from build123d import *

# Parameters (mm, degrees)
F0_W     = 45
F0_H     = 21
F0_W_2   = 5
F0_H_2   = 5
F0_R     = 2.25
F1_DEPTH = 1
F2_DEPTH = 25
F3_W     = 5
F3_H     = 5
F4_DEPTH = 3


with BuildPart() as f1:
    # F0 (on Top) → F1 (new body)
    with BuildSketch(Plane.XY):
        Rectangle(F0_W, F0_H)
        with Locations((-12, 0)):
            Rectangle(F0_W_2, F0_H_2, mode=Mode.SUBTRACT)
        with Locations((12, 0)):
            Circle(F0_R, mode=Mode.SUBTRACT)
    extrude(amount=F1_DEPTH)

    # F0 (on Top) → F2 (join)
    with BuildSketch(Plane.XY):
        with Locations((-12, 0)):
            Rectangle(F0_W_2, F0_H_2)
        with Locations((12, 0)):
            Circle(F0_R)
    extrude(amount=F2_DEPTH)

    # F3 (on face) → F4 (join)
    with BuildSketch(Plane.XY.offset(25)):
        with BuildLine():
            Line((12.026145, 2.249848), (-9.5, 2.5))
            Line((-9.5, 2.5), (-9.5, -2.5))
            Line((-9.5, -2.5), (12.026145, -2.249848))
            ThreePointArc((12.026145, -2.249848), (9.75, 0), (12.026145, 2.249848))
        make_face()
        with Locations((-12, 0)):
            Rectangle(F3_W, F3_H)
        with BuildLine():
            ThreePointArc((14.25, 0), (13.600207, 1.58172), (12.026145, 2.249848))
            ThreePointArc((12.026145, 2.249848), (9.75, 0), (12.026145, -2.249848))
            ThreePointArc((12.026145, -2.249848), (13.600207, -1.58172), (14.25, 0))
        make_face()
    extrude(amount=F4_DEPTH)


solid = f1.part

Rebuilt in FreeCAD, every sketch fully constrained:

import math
import FreeCAD as App
import Part
import Sketcher
from FreeCAD import Vector

doc = App.newDocument("Part")
body = doc.addObject("PartDesign::Body", "Body")

sketch1 = body.newObject("Sketcher::SketchObject", "Sketch")
sketch1.AttachmentSupport = (doc.getObject("XY_Plane"), [""])
sketch1.MapMode = "FlatFace"
sketch1.addGeometry([
    Part.LineSegment(Vector(-22.5, 10.5, 0), Vector(-22.5, -10.5, 0)),
    Part.LineSegment(Vector(-22.5, -10.5, 0), Vector(22.5, -10.5, 0)),
    Part.LineSegment(Vector(22.5, -10.5, 0), Vector(22.5, 10.5, 0)),
    Part.LineSegment(Vector(22.5, 10.5, 0), Vector(-22.5, 10.5, 0)),
    Part.LineSegment(Vector(-9.5, -2.5, 0), Vector(-14.5, -2.5, 0)),
    Part.LineSegment(Vector(-14.5, -2.5, 0), Vector(-14.5, 2.5, 0)),
    Part.LineSegment(Vector(-14.5, 2.5, 0), Vector(-9.5, 2.5, 0)),
    Part.LineSegment(Vector(-9.5, 2.5, 0), Vector(-9.5, -2.5, 0)),
    Part.Circle(Vector(12, 0, 0), Vector(0, 0, 1), 2.25),
], False)
sketch1.addConstraint([
    Sketcher.Constraint("Coincident", 0, 2, 1, 1),
    Sketcher.Constraint("Coincident", 1, 2, 2, 1),
    Sketcher.Constraint("Coincident", 2, 2, 3, 1),
    Sketcher.Constraint("Coincident", 3, 2, 0, 1),
    Sketcher.Constraint("Coincident", 4, 2, 5, 1),
    Sketcher.Constraint("Coincident", 5, 2, 6, 1),
    Sketcher.Constraint("Coincident", 6, 2, 7, 1),
    Sketcher.Constraint("Coincident", 7, 2, 4, 1),
    Sketcher.Constraint("Vertical", 0),
    Sketcher.Constraint("Horizontal", 1),
    Sketcher.Constraint("Vertical", 2),
    Sketcher.Constraint("Horizontal", 3),
    Sketcher.Constraint("Horizontal", 4),
    Sketcher.Constraint("Vertical", 5),
    Sketcher.Constraint("Horizontal", 6),
    Sketcher.Constraint("Vertical", 7),
    Sketcher.Constraint("Symmetric", 0, 2, 2, 2, -1, 1),
    Sketcher.Constraint("PointOnObject", 8, 3, -1),
    Sketcher.Constraint("Equal", 6, 5),
    Sketcher.Constraint("Diameter", 8, 4.5),
    Sketcher.Constraint("DistanceX", 1, 1, 1, 2, 45.0),
    Sketcher.Constraint("DistanceX", 4, 2, 4, 1, 5.0),
    Sketcher.Constraint("DistanceY", 0, 2, 0, 1, 21.0),
    Sketcher.Constraint("DistanceX", -1, 1, 8, 3, 12.0),
    Sketcher.Constraint("DistanceX", 0, 2, 4, 2, 8.0),
    Sketcher.Constraint("DistanceY", 0, 2, 4, 2, 8.0),
])
pad1 = body.newObject("PartDesign::Pad", "Pad")
pad1.Profile = sketch1
pad1.Length = 1

sketch2 = body.newObject("Sketcher::SketchObject", "Sketch001")
sketch2.AttachmentSupport = (doc.getObject("XY_Plane"), [""])
sketch2.MapMode = "FlatFace"
sketch2.addGeometry([
    Part.LineSegment(Vector(-14.5, 2.5, 0), Vector(-14.5, -2.5, 0)),
    Part.LineSegment(Vector(-14.5, -2.5, 0), Vector(-9.5, -2.5, 0)),
    Part.LineSegment(Vector(-9.5, -2.5, 0), Vector(-9.5, 2.5, 0)),
    Part.LineSegment(Vector(-9.5, 2.5, 0), Vector(-14.5, 2.5, 0)),
    Part.Circle(Vector(12, 0, 0), Vector(0, 0, 1), 2.25),
], False)
sketch2.addConstraint([
    Sketcher.Constraint("Coincident", 0, 2, 1, 1),
    Sketcher.Constraint("Coincident", 1, 2, 2, 1),
    Sketcher.Constraint("Coincident", 2, 2, 3, 1),
    Sketcher.Constraint("Coincident", 3, 2, 0, 1),
    Sketcher.Constraint("Vertical", 0),
    Sketcher.Constraint("Horizontal", 1),
    Sketcher.Constraint("Vertical", 2),
    Sketcher.Constraint("Horizontal", 3),
    Sketcher.Constraint("PointOnObject", 4, 3, -1),
    Sketcher.Constraint("Equal", 3, 0),
    Sketcher.Constraint("Diameter", 4, 4.5),
    Sketcher.Constraint("DistanceX", 1, 1, 1, 2, 5.0),
    Sketcher.Constraint("DistanceX", -1, 1, 4, 3, 12.0),
    Sketcher.Constraint("DistanceX", 0, 2, -1, 1, 14.5),
    Sketcher.Constraint("DistanceY", 0, 2, -1, 1, 2.5),
])
pad2 = body.newObject("PartDesign::Pad", "Pad001")
pad2.Profile = sketch2
pad2.Length = 25

sketch3 = body.newObject("Sketcher::SketchObject", "Sketch002")
sketch3.AttachmentSupport = (doc.getObject("XY_Plane"), [""])
sketch3.MapMode = "FlatFace"
sketch3.AttachmentOffset = App.Placement(Vector(0, 0, 25), App.Rotation())
sketch3.addGeometry([
    Part.LineSegment(Vector(12.026145, 2.249848, 0), Vector(-9.5, 2.5, 0)),
    Part.LineSegment(Vector(-9.5, 2.5, 0), Vector(-14.5, 2.5, 0)),
    Part.LineSegment(Vector(-14.5, 2.5, 0), Vector(-14.5, -2.5, 0)),
    Part.LineSegment(Vector(-14.5, -2.5, 0), Vector(-9.5, -2.5, 0)),
    Part.LineSegment(Vector(-9.5, -2.5, 0), Vector(12.026145, -2.249848, 0)),
    Part.ArcOfCircle(Part.Circle(Vector(12, 0, 0), Vector(0, 0, 1), 2.25), math.radians(-89.33422), math.radians(0.00001)),
    Part.ArcOfCircle(Part.Circle(Vector(12, 0, 0), Vector(0, 0, 1), 2.25), math.radians(-0.00001), math.radians(89.33422)),
], False)
sketch3.addConstraint([
    Sketcher.Constraint("Coincident", 0, 2, 1, 1),
    Sketcher.Constraint("Coincident", 1, 2, 2, 1),
    Sketcher.Constraint("Coincident", 2, 2, 3, 1),
    Sketcher.Constraint("Coincident", 3, 2, 4, 1),
    Sketcher.Constraint("Tangent", 4, 2, 5, 1),
    Sketcher.Constraint("Tangent", 5, 2, 6, 1),
    Sketcher.Constraint("Tangent", 6, 2, 0, 1),
    Sketcher.Constraint("Horizontal", 1),
    Sketcher.Constraint("Vertical", 2),
    Sketcher.Constraint("Horizontal", 3),
    Sketcher.Constraint("Equal", 5, 6),
    Sketcher.Constraint("Symmetric", 0, 2, 3, 2, -1),
    Sketcher.Constraint("PointOnObject", 5, 3, -1),
    Sketcher.Constraint("PointOnObject", 5, 2, -1),
    Sketcher.Constraint("Equal", 3, 2),
    Sketcher.Constraint("DistanceX", 1, 2, 1, 1, 5.0),
    Sketcher.Constraint("Radius", 5, 2.25),
    Sketcher.Constraint("DistanceX", -1, 1, 5, 3, 12.0),
    Sketcher.Constraint("DistanceX", 0, 2, -1, 1, 9.5),
])
pad3 = body.newObject("PartDesign::Pad", "Pad002")
pad3.Profile = sketch3
pad3.Length = 3

doc.recompute()
